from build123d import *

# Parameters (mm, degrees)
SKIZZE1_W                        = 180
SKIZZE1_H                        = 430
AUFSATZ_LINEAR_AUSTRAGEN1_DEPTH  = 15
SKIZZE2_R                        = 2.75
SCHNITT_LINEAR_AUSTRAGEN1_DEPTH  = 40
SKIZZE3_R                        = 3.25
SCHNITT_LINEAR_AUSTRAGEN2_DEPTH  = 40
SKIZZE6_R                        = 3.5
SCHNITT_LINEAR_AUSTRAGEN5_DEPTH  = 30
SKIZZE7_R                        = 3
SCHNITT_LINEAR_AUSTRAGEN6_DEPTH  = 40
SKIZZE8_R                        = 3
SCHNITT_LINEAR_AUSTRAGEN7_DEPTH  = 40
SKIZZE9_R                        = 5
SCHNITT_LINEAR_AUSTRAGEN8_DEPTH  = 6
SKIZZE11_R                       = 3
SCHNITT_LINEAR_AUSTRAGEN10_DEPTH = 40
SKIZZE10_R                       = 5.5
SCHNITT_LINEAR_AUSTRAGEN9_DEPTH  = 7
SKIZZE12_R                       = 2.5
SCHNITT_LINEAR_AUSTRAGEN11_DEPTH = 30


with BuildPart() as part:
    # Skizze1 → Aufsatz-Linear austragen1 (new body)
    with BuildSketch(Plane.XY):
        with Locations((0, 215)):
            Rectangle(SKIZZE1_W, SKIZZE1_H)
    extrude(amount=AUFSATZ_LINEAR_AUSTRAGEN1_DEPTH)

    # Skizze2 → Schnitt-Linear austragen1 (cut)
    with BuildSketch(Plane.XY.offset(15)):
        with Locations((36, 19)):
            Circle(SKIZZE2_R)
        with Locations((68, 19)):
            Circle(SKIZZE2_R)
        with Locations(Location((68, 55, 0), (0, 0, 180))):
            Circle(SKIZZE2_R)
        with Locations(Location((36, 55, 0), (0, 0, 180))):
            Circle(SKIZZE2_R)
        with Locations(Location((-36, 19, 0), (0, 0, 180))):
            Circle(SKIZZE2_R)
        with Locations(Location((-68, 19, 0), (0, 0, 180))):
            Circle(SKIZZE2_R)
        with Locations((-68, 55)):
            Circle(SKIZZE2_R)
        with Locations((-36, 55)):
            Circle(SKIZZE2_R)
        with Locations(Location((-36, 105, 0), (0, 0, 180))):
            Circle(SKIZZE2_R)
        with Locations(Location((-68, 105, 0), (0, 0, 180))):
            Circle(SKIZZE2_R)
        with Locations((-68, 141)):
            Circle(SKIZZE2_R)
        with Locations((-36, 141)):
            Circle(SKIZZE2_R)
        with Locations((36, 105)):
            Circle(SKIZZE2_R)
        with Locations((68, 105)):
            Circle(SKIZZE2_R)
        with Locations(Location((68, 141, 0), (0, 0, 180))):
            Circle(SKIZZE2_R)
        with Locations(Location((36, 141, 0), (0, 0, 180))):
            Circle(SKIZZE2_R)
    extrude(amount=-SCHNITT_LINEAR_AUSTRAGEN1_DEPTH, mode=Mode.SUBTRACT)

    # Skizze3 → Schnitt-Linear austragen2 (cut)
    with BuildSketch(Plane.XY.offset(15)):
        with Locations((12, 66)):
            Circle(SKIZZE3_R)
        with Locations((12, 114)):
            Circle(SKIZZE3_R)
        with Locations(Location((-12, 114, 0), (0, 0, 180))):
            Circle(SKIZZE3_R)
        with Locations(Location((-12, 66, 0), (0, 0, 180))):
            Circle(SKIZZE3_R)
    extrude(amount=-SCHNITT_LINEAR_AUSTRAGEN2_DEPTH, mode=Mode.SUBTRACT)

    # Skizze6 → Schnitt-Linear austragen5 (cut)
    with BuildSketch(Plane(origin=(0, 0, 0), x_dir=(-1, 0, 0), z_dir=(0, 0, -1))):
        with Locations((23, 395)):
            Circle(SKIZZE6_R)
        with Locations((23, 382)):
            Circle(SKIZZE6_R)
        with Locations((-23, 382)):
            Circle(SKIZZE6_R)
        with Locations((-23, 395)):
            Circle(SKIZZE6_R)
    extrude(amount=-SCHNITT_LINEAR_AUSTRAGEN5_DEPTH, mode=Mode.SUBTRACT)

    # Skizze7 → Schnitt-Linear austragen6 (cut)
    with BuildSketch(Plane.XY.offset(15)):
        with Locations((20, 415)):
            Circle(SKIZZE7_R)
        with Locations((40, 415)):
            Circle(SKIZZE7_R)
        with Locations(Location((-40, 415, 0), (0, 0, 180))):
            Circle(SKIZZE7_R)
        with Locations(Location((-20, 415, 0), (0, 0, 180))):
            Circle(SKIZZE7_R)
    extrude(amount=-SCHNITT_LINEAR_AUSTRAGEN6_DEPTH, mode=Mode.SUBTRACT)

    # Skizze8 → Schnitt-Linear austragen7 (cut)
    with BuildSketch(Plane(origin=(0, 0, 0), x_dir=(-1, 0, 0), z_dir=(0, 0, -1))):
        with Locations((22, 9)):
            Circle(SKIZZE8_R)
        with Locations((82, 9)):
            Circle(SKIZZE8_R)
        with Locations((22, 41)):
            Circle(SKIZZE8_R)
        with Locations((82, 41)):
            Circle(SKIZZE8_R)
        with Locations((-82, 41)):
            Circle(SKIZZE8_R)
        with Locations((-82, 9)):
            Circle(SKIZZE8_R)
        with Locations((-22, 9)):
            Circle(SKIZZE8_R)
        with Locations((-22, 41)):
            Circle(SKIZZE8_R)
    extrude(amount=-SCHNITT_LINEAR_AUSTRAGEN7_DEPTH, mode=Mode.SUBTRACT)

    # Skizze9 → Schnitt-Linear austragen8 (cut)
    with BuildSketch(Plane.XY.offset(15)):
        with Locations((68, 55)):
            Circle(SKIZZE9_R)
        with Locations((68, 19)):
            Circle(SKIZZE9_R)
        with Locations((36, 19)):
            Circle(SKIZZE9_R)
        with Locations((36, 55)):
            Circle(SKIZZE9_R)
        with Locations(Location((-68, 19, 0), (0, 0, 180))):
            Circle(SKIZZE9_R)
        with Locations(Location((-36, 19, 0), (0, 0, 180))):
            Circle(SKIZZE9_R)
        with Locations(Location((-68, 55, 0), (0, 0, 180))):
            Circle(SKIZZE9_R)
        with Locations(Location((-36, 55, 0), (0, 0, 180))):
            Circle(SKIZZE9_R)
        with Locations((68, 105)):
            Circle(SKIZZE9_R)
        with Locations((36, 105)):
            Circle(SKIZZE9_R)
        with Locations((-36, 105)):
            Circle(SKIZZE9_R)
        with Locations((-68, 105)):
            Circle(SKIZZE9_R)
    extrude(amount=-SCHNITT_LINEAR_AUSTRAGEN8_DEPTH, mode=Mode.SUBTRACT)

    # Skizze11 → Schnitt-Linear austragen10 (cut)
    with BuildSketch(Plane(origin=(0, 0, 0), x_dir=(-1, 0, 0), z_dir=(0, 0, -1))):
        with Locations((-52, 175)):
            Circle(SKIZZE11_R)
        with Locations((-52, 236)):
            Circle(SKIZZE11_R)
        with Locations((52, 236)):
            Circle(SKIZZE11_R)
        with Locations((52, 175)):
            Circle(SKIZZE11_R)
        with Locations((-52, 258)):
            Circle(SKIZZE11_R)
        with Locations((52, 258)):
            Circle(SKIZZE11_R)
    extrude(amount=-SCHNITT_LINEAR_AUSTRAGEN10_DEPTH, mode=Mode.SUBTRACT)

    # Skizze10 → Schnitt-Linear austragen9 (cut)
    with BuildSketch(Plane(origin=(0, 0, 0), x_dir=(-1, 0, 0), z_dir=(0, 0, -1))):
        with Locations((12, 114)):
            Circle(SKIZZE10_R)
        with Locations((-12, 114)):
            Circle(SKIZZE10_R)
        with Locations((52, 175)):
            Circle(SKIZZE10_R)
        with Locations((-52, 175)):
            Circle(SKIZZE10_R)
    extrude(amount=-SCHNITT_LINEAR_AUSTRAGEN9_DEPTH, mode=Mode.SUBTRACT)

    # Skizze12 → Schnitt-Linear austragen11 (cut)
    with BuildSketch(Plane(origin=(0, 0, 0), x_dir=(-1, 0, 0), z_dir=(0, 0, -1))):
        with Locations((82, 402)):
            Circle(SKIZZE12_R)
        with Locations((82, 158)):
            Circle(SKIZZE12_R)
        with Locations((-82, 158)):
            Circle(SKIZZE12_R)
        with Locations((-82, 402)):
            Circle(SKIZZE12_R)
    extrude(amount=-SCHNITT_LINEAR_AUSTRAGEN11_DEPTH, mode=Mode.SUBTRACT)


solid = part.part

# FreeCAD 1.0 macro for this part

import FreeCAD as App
import Part
import Sketcher
Q = App.Units.Quantity

doc = App.newDocument("Part")
params = doc.addObject("Spreadsheet::Sheet", "Params")
for row, (alias, value) in enumerate([
    ("sketch1_width", "180 mm"),
    ("sketch1_height", "430 mm"),
    ("pad1_length", "15 mm"),
    ("sketch2_diameter", "5.5 mm"),
    ("pocket1_length", "40 mm"),
    ("sketch3_diameter", "6.5 mm"),
    ("pocket2_length", "40 mm"),
    ("sketch4_diameter", "7 mm"),
    ("pocket3_length", "30 mm"),
    ("sketch5_diameter", "6 mm"),
    ("pocket4_length", "40 mm"),
    ("sketch6_diameter", "6 mm"),
    ("pocket5_length", "40 mm"),
    ("sketch7_diameter", "10 mm"),
    ("pocket6_length", "6 mm"),
    ("sketch8_diameter", "6 mm"),
    ("pocket7_length", "40 mm"),
    ("sketch9_diameter", "11 mm"),
    ("pocket8_length", "7 mm"),
    ("sketch10_diameter", "5 mm"),
    ("pocket9_length", "30 mm"),
], start=1):
    params.set(f"A{row}", alias)
    params.set(f"B{row}", "=" + value)
    params.setAlias(f"B{row}", alias)

body = doc.addObject("PartDesign::Body", "Body")

# Sketch on XY plane
sketch1 = body.newObject("Sketcher::SketchObject", "Sketch")
sketch1.AttachmentSupport = (doc.getObject("XY_Plane"), [""])
sketch1.MapMode = "FlatFace"
sketch1.addGeometry([
    Part.LineSegment(App.Vector(-90, 430, 0), App.Vector(-90, 0, 0)),
    Part.LineSegment(App.Vector(-90, 0, 0), App.Vector(90, 0, 0)),
    Part.LineSegment(App.Vector(90, 0, 0), App.Vector(90, 430, 0)),
    Part.LineSegment(App.Vector(90, 430, 0), App.Vector(-90, 430, 0)),
], False)
sketch1.addConstraint([
    Sketcher.Constraint("Coincident", 0, 2, 1, 1),
    Sketcher.Constraint("Coincident", 1, 2, 2, 1),
    Sketcher.Constraint("Coincident", 2, 2, 3, 1),
    Sketcher.Constraint("Coincident", 3, 2, 0, 1),
    Sketcher.Constraint("Vertical", 0),
    Sketcher.Constraint("Horizontal", 1),
    Sketcher.Constraint("Vertical", 2),
    Sketcher.Constraint("Horizontal", 3),
    Sketcher.Constraint("Symmetric", 0, 2, 1, 2, -1, 1),
    Sketcher.Constraint("DistanceX", 1, 1, 1, 2, Q("180 mm")),
    Sketcher.Constraint("DistanceY", 0, 2, 0, 1, Q("430 mm")),
])
sketch1.setExpression("Constraints[9]", "Params.sketch1_width")
sketch1.setExpression("Constraints[10]", "Params.sketch1_height")
pad1 = body.newObject("PartDesign::Pad", "Pad")
pad1.Profile = sketch1
pad1.setExpression("Length", "Params.pad1_length")

# Sketch on XY plane
sketch2 = body.newObject("Sketcher::SketchObject", "Sketch001")
sketch2.AttachmentSupport = (doc.getObject("XY_Plane"), [""])
sketch2.MapMode = "FlatFace"
sketch2.AttachmentOffset = App.Placement(App.Vector(0, 0, 15), App.Rotation())
sketch2.addGeometry([
    Part.Circle(App.Vector(36, 19, 0), App.Vector(0, 0, 1), 2.8),  # 0
    Part.Circle(App.Vector(68, 19, 0), App.Vector(0, 0, 1), 2.8),  # 1
    Part.Circle(App.Vector(68, 55, 0), App.Vector(0, 0, 1), 2.8),  # 2
    Part.Circle(App.Vector(36, 55, 0), App.Vector(0, 0, 1), 2.8),  # 3
    Part.Circle(App.Vector(-36, 19, 0), App.Vector(0, 0, 1), 2.8),  # 4
    Part.Circle(App.Vector(-68, 19, 0), App.Vector(0, 0, 1), 2.8),  # 5
    Part.Circle(App.Vector(-68, 55, 0), App.Vector(0, 0, 1), 2.8),  # 6
    Part.Circle(App.Vector(-36, 55, 0), App.Vector(0, 0, 1), 2.8),  # 7
    Part.Circle(App.Vector(-36, 105, 0), App.Vector(0, 0, 1), 2.8),  # 8
    Part.Circle(App.Vector(-68, 105, 0), App.Vector(0, 0, 1), 2.8),  # 9
    Part.Circle(App.Vector(-68, 141, 0), App.Vector(0, 0, 1), 2.8),  # 10
    Part.Circle(App.Vector(-36, 141, 0), App.Vector(0, 0, 1), 2.8),  # 11
    Part.Circle(App.Vector(36, 105, 0), App.Vector(0, 0, 1), 2.8),  # 12
    Part.Circle(App.Vector(68, 105, 0), App.Vector(0, 0, 1), 2.8),  # 13
    Part.Circle(App.Vector(68, 141, 0), App.Vector(0, 0, 1), 2.8),  # 14
    Part.Circle(App.Vector(36, 141, 0), App.Vector(0, 0, 1), 2.8),  # 15
], False)
sketch2.addConstraint([
    Sketcher.Constraint("Equal", 0, 1),
    Sketcher.Constraint("Equal", 1, 2),
    Sketcher.Constraint("Equal", 2, 3),
    Sketcher.Constraint("Equal", 3, 4),
    Sketcher.Constraint("Equal", 4, 5),
    Sketcher.Constraint("Equal", 5, 6),
    Sketcher.Constraint("Equal", 6, 7),
    Sketcher.Constraint("Equal", 7, 8),
    Sketcher.Constraint("Equal", 8, 9),
    Sketcher.Constraint("Equal", 9, 10),
    Sketcher.Constraint("Equal", 10, 11),
    Sketcher.Constraint("Equal", 11, 12),
    Sketcher.Constraint("Equal", 12, 13),
    Sketcher.Constraint("Equal", 13, 14),
    Sketcher.Constraint("Equal", 14, 15),
    Sketcher.Constraint("Symmetric", 0, 3, 4, 3, -2),
    Sketcher.Constraint("Symmetric", 1, 3, 5, 3, -2),
    Sketcher.Constraint("Symmetric", 2, 3, 6, 3, -2),
    Sketcher.Constraint("Symmetric", 3, 3, 7, 3, -2),
    Sketcher.Constraint("Symmetric", 8, 3, 12, 3, -2),
    Sketcher.Constraint("Symmetric", 9, 3, 13, 3, -2),
    Sketcher.Constraint("Symmetric", 10, 3, 14, 3, -2),
    Sketcher.Constraint("Symmetric", 11, 3, 15, 3, -2),
    Sketcher.Constraint("Horizontal", 0, 3, 1, 3),
    Sketcher.Constraint("Horizontal", 2, 3, 3, 3),
    Sketcher.Constraint("Horizontal", 8, 3, 9, 3),
    Sketcher.Constraint("Horizontal", 10, 3, 11, 3),
    Sketcher.Constraint("Vertical", 1, 3, 2, 3),
    Sketcher.Constraint("Vertical", 0, 3, 3, 3),
    Sketcher.Constraint("Vertical", 7, 3, 8, 3),
    Sketcher.Constraint("Vertical", 6, 3, 9, 3),
    Sketcher.Constraint("Vertical", 9, 3, 10, 3),
    Sketcher.Constraint("Vertical", 8, 3, 11, 3),
    Sketcher.Constraint("Diameter", 0, Q("5.5 mm")),
    Sketcher.Constraint("DistanceX", -1, 1, 0, 3, Q("36 mm")),
    Sketcher.Constraint("DistanceY", -1, 1, 0, 3, Q("19 mm")),
    Sketcher.Constraint("DistanceX", -1, 1, 1, 3, Q("68 mm")),
    Sketcher.Constraint("DistanceY", -1, 1, 2, 3, Q("55 mm")),
    Sketcher.Constraint("DistanceY", -1, 1, 8, 3, Q("105 mm")),
    Sketcher.Constraint("DistanceY", -1, 1, 10, 3, Q("141 mm")),
])
sketch2.setExpression("Constraints[33]", "Params.sketch2_diameter")
pocket1 = body.newObject("PartDesign::Pocket", "Pocket")
pocket1.Profile = sketch2
pocket1.setExpression("Length", "Params.pocket1_length")

# Sketch on XY plane
sketch3 = body.newObject("Sketcher::SketchObject", "Sketch002")
sketch3.AttachmentSupport = (doc.getObject("XY_Plane"), [""])
sketch3.MapMode = "FlatFace"
sketch3.AttachmentOffset = App.Placement(App.Vector(0, 0, 15), App.Rotation())
sketch3.addGeometry([
    Part.Circle(App.Vector(12, 66, 0), App.Vector(0, 0, 1), 3.2),
    Part.Circle(App.Vector(12, 114, 0), App.Vector(0, 0, 1), 3.2),
    Part.Circle(App.Vector(-12, 114, 0), App.Vector(0, 0, 1), 3.2),
    Part.Circle(App.Vector(-12, 66, 0), App.Vector(0, 0, 1), 3.2),
], False)
sketch3.addConstraint([
    Sketcher.Constraint("Equal", 0, 1),
    Sketcher.Constraint("Equal", 1, 2),
    Sketcher.Constraint("Equal", 2, 3),
    Sketcher.Constraint("Symmetric", 1, 3, 2, 3, -2),
    Sketcher.Constraint("Symmetric", 0, 3, 3, 3, -2),
    Sketcher.Constraint("Vertical", 0, 3, 1, 3),
    Sketcher.Constraint("Diameter", 0, Q("6.5 mm")),
    Sketcher.Constraint("DistanceX", -1, 1, 0, 3, Q("12 mm")),
    Sketcher.Constraint("DistanceY", -1, 1, 0, 3, Q("66 mm")),
    Sketcher.Constraint("DistanceY", -1, 1, 1, 3, Q("114 mm")),
])
sketch3.setExpression("Constraints[6]", "Params.sketch3_diameter")
pocket2 = body.newObject("PartDesign::Pocket", "Pocket001")
pocket2.Profile = sketch3
pocket2.setExpression("Length", "Params.pocket2_length")

# Sketch on XY plane
sketch4 = body.newObject("Sketcher::SketchObject", "Sketch003")
sketch4.AttachmentSupport = (doc.getObject("XY_Plane"), [""])
sketch4.MapMode = "FlatFace"
sketch4.addGeometry([
    Part.Circle(App.Vector(-23, 395, 0), App.Vector(0, 0, 1), 3.5),
    Part.Circle(App.Vector(-23, 382, 0), App.Vector(0, 0, 1), 3.5),
    Part.Circle(App.Vector(23, 382, 0), App.Vector(0, 0, 1), 3.5),
    Part.Circle(App.Vector(23, 395, 0), App.Vector(0, 0, 1), 3.5),
], False)
sketch4.addConstraint([
    Sketcher.Constraint("Equal", 0, 1),
    Sketcher.Constraint("Equal", 1, 2),
    Sketcher.Constraint("Equal", 2, 3),
    Sketcher.Constraint("Symmetric", 1, 3, 2, 3, -2),
    Sketcher.Constraint("Symmetric", 0, 3, 3, 3, -2),
    Sketcher.Constraint("Vertical", 0, 3, 1, 3),
    Sketcher.Constraint("Diameter", 0, Q("7 mm")),
    Sketcher.Constraint("DistanceX", 0, 3, -1, 1, Q("23 mm")),
    Sketcher.Constraint("DistanceY", -1, 1, 0, 3, Q("395 mm")),
    Sketcher.Constraint("DistanceY", -1, 1, 1, 3, Q("382 mm")),
])
sketch4.setExpression("Constraints[6]", "Params.sketch4_diameter")
pocket3 = body.newObject("PartDesign::Pocket", "Pocket002")
pocket3.Profile = sketch4
pocket3.setExpression("Length", "Params.pocket3_length")
pocket3.Reversed = True

# Sketch on XY plane
sketch5 = body.newObject("Sketcher::SketchObject", "Sketch004")
sketch5.AttachmentSupport = (doc.getObject("XY_Plane"), [""])
sketch5.MapMode = "FlatFace"
sketch5.AttachmentOffset = App.Placement(App.Vector(0, 0, 15), App.Rotation())
sketch5.addGeometry([
    Part.Circle(App.Vector(20, 415, 0), App.Vector(0, 0, 1), 3),
    Part.Circle(App.Vector(40, 415, 0), App.Vector(0, 0, 1), 3),
    Part.Circle(App.Vector(-40, 415, 0), App.Vector(0, 0, 1), 3),
    Part.Circle(App.Vector(-20, 415, 0), App.Vector(0, 0, 1), 3),
], False)
sketch5.addConstraint([
    Sketcher.Constraint("Equal", 0, 1),
    Sketcher.Constraint("Equal", 1, 2),
    Sketcher.Constraint("Equal", 2, 3),
    Sketcher.Constraint("Symmetric", 1, 3, 2, 3, -2),
    Sketcher.Constraint("Symmetric", 0, 3, 3, 3, -2),
    Sketcher.Constraint("Horizontal", 0, 3, 1, 3),
    Sketcher.Constraint("Diameter", 0, Q("6 mm")),
    Sketcher.Constraint("DistanceX", -1, 1, 0, 3, Q("20 mm")),
    Sketcher.Constraint("DistanceY", -1, 1, 0, 3, Q("415 mm")),
    Sketcher.Constraint("DistanceX", -1, 1, 1, 3, Q("40 mm")),
])
sketch5.setExpression("Constraints[6]", "Params.sketch5_diameter")
pocket4 = body.newObject("PartDesign::Pocket", "Pocket003")
pocket4.Profile = sketch5
pocket4.setExpression("Length", "Params.pocket4_length")

# Sketch on XY plane
sketch6 = body.newObject("Sketcher::SketchObject", "Sketch005")
sketch6.AttachmentSupport = (doc.getObject("XY_Plane"), [""])
sketch6.MapMode = "FlatFace"
sketch6.addGeometry([
    Part.Circle(App.Vector(-22, 9, 0), App.Vector(0, 0, 1), 3),  # 0
    Part.Circle(App.Vector(-82, 9, 0), App.Vector(0, 0, 1), 3),  # 1
    Part.Circle(App.Vector(-22, 41, 0), App.Vector(0, 0, 1), 3),  # 2
    Part.Circle(App.Vector(-82, 41, 0), App.Vector(0, 0, 1), 3),  # 3
    Part.Circle(App.Vector(82, 41, 0), App.Vector(0, 0, 1), 3),  # 4
    Part.Circle(App.Vector(82, 9, 0), App.Vector(0, 0, 1), 3),  # 5
    Part.Circle(App.Vector(22, 9, 0), App.Vector(0, 0, 1), 3),  # 6
    Part.Circle(App.Vector(22, 41, 0), App.Vector(0, 0, 1), 3),  # 7
], False)
sketch6.addConstraint([
    Sketcher.Constraint("Equal", 0, 1),
    Sketcher.Constraint("Equal", 1, 2),
    Sketcher.Constraint("Equal", 2, 3),
    Sketcher.Constraint("Equal", 3, 4),
    Sketcher.Constraint("Equal", 4, 5),
    Sketcher.Constraint("Equal", 5, 6),
    Sketcher.Constraint("Equal", 6, 7),
    Sketcher.Constraint("Symmetric", 3, 3, 4, 3, -2),
    Sketcher.Constraint("Symmetric", 1, 3, 5, 3, -2),
    Sketcher.Constraint("Symmetric", 0, 3, 6, 3, -2),
    Sketcher.Constraint("Symmetric", 2, 3, 7, 3, -2),
    Sketcher.Constraint("Horizontal", 0, 3, 1, 3),
    Sketcher.Constraint("Horizontal", 2, 3, 3, 3),
    Sketcher.Constraint("Vertical", 0, 3, 2, 3),
    Sketcher.Constraint("Vertical", 1, 3, 3, 3),
    Sketcher.Constraint("Diameter", 0, Q("6 mm")),
    Sketcher.Constraint("DistanceX", 0, 3, -1, 1, Q("22 mm")),
    Sketcher.Constraint("DistanceY", -1, 1, 0, 3, Q("9 mm")),
    Sketcher.Constraint("DistanceX", 1, 3, -1, 1, Q("82 mm")),
    Sketcher.Constraint("DistanceY", -1, 1, 2, 3, Q("41 mm")),
])
sketch6.setExpression("Constraints[15]", "Params.sketch6_diameter")
pocket5 = body.newObject("PartDesign::Pocket", "Pocket004")
pocket5.Profile = sketch6
pocket5.setExpression("Length", "Params.pocket5_length")
pocket5.Reversed = True

# Sketch on XY plane
sketch7 = body.newObject("Sketcher::SketchObject", "Sketch006")
sketch7.AttachmentSupport = (doc.getObject("XY_Plane"), [""])
sketch7.MapMode = "FlatFace"
sketch7.AttachmentOffset = App.Placement(App.Vector(0, 0, 15), App.Rotation())
sketch7.addGeometry([
    Part.Circle(App.Vector(68, 55, 0), App.Vector(0, 0, 1), 5),  # 0
    Part.Circle(App.Vector(68, 19, 0), App.Vector(0, 0, 1), 5),  # 1
    Part.Circle(App.Vector(36, 19, 0), App.Vector(0, 0, 1), 5),  # 2
    Part.Circle(App.Vector(36, 55, 0), App.Vector(0, 0, 1), 5),  # 3
    Part.Circle(App.Vector(-68, 19, 0), App.Vector(0, 0, 1), 5),  # 4
    Part.Circle(App.Vector(-36, 19, 0), App.Vector(0, 0, 1), 5),  # 5
    Part.Circle(App.Vector(-68, 55, 0), App.Vector(0, 0, 1), 5),  # 6
    Part.Circle(App.Vector(-36, 55, 0), App.Vector(0, 0, 1), 5),  # 7
    Part.Circle(App.Vector(68, 105, 0), App.Vector(0, 0, 1), 5),  # 8
    Part.Circle(App.Vector(36, 105, 0), App.Vector(0, 0, 1), 5),  # 9
    Part.Circle(App.Vector(-36, 105, 0), App.Vector(0, 0, 1), 5),  # 10
    Part.Circle(App.Vector(-68, 105, 0), App.Vector(0, 0, 1), 5),  # 11
], False)
sketch7.addConstraint([
    Sketcher.Constraint("Equal", 0, 1),
    Sketcher.Constraint("Equal", 1, 2),
    Sketcher.Constraint("Equal", 2, 3),
    Sketcher.Constraint("Equal", 3, 4),
    Sketcher.Constraint("Equal", 4, 5),
    Sketcher.Constraint("Equal", 5, 6),
    Sketcher.Constraint("Equal", 6, 7),
    Sketcher.Constraint("Equal", 7, 8),
    Sketcher.Constraint("Equal", 8, 9),
    Sketcher.Constraint("Equal", 9, 10),
    Sketcher.Constraint("Equal", 10, 11),
    Sketcher.Constraint("Symmetric", 1, 3, 4, 3, -2),
    Sketcher.Constraint("Symmetric", 2, 3, 5, 3, -2),
    Sketcher.Constraint("Symmetric", 0, 3, 6, 3, -2),
    Sketcher.Constraint("Symmetric", 3, 3, 7, 3, -2),
    Sketcher.Constraint("Symmetric", 9, 3, 10, 3, -2),
    Sketcher.Constraint("Symmetric", 8, 3, 11, 3, -2),
    Sketcher.Constraint("Horizontal", 1, 3, 2, 3),
    Sketcher.Constraint("Horizontal", 0, 3, 3, 3),
    Sketcher.Constraint("Horizontal", 8, 3, 9, 3),
    Sketcher.Constraint("Vertical", 0, 3, 1, 3),
    Sketcher.Constraint("Vertical", 2, 3, 3, 3),
    Sketcher.Constraint("Vertical", 1, 3, 8, 3),
    Sketcher.Constraint("Vertical", 3, 3, 9, 3),
    Sketcher.Constraint("Diameter", 0, Q("10 mm")),
    Sketcher.Constraint("DistanceX", -1, 1, 0, 3, Q("68 mm")),
    Sketcher.Constraint("DistanceY", -1, 1, 0, 3, Q("55 mm")),
    Sketcher.Constraint("DistanceY", -1, 1, 1, 3, Q("19 mm")),
    Sketcher.Constraint("DistanceX", -1, 1, 2, 3, Q("36 mm")),
    Sketcher.Constraint("DistanceY", -1, 1, 8, 3, Q("105 mm")),
])
sketch7.setExpression("Constraints[24]", "Params.sketch7_diameter")
pocket6 = body.newObject("PartDesign::Pocket", "Pocket005")
pocket6.Profile = sketch7
pocket6.setExpression("Length", "Params.pocket6_length")

# Sketch on XY plane
sketch8 = body.newObject("Sketcher::SketchObject", "Sketch007")
sketch8.AttachmentSupport = (doc.getObject("XY_Plane"), [""])
sketch8.MapMode = "FlatFace"
sketch8.addGeometry([
    Part.Circle(App.Vector(52, 175, 0), App.Vector(0, 0, 1), 3),  # 0
    Part.Circle(App.Vector(52, 236, 0), App.Vector(0, 0, 1), 3),  # 1
    Part.Circle(App.Vector(-52, 236, 0), App.Vector(0, 0, 1), 3),  # 2
    Part.Circle(App.Vector(-52, 175, 0), App.Vector(0, 0, 1), 3),  # 3
    Part.Circle(App.Vector(52, 258, 0), App.Vector(0, 0, 1), 3),  # 4
    Part.Circle(App.Vector(-52, 258, 0), App.Vector(0, 0, 1), 3),  # 5
], False)
sketch8.addConstraint([
    Sketcher.Constraint("Equal", 0, 1),
    Sketcher.Constraint("Equal", 1, 2),
    Sketcher.Constraint("Equal", 2, 3),
    Sketcher.Constraint("Equal", 3, 4),
    Sketcher.Constraint("Equal", 4, 5),
    Sketcher.Constraint("Symmetric", 1, 3, 2, 3, -2),
    Sketcher.Constraint("Symmetric", 0, 3, 3, 3, -2),
    Sketcher.Constraint("Symmetric", 4, 3, 5, 3, -2),
    Sketcher.Constraint("Vertical", 0, 3, 1, 3),
    Sketcher.Constraint("Vertical", 1, 3, 4, 3),
    Sketcher.Constraint("Diameter", 0, Q("6 mm")),
    Sketcher.Constraint("DistanceX", -1, 1, 0, 3, Q("52 mm")),
    Sketcher.Constraint("DistanceY", -1, 1, 0, 3, Q("175 mm")),
    Sketcher.Constraint("DistanceY", -1, 1, 1, 3, Q("236 mm")),
    Sketcher.Constraint("DistanceY", -1, 1, 4, 3, Q("258 mm")),
])
sketch8.setExpression("Constraints[10]", "Params.sketch8_diameter")
pocket7 = body.newObject("PartDesign::Pocket", "Pocket006")
pocket7.Profile = sketch8
pocket7.setExpression("Length", "Params.pocket7_length")
pocket7.Reversed = True

# Sketch on XY plane
sketch9 = body.newObject("Sketcher::SketchObject", "Sketch008")
sketch9.AttachmentSupport = (doc.getObject("XY_Plane"), [""])
sketch9.MapMode = "FlatFace"
sketch9.addGeometry([
    Part.Circle(App.Vector(-12, 114, 0), App.Vector(0, 0, 1), 6),
    Part.Circle(App.Vector(12, 114, 0), App.Vector(0, 0, 1), 6),
    Part.Circle(App.Vector(-52, 175, 0), App.Vector(0, 0, 1), 6),
    Part.Circle(App.Vector(52, 175, 0), App.Vector(0, 0, 1), 6),
], False)
sketch9.addConstraint([
    Sketcher.Constraint("Equal", 0, 1),
    Sketcher.Constraint("Equal", 1, 2),
    Sketcher.Constraint("Equal", 2, 3),
    Sketcher.Constraint("Symmetric", 0, 3, 1, 3, -2),
    Sketcher.Constraint("Symmetric", 2, 3, 3, 3, -2),
    Sketcher.Constraint("Diameter", 0, Q("11 mm")),
    Sketcher.Constraint("DistanceX", 0, 3, -1, 1, Q("12 mm")),
    Sketcher.Constraint("DistanceY", -1, 1, 0, 3, Q("114 mm")),
    Sketcher.Constraint("DistanceX", 2, 3, -1, 1, Q("52 mm")),
    Sketcher.Constraint("DistanceY", -1, 1, 2, 3, Q("175 mm")),
])
sketch9.setExpression("Constraints[5]", "Params.sketch9_diameter")
pocket8 = body.newObject("PartDesign::Pocket", "Pocket007")
pocket8.Profile = sketch9
pocket8.setExpression("Length", "Params.pocket8_length")
pocket8.Reversed = True

# Sketch on XY plane
sketch10 = body.newObject("Sketcher::SketchObject", "Sketch009")
sketch10.AttachmentSupport = (doc.getObject("XY_Plane"), [""])
sketch10.MapMode = "FlatFace"
sketch10.addGeometry([
    Part.Circle(App.Vector(-82, 402, 0), App.Vector(0, 0, 1), 2.5),
    Part.Circle(App.Vector(-82, 158, 0), App.Vector(0, 0, 1), 2.5),
    Part.Circle(App.Vector(82, 158, 0), App.Vector(0, 0, 1), 2.5),
    Part.Circle(App.Vector(82, 402, 0), App.Vector(0, 0, 1), 2.5),
], False)
sketch10.addConstraint([
    Sketcher.Constraint("Equal", 0, 1),
    Sketcher.Constraint("Equal", 1, 2),
    Sketcher.Constraint("Equal", 2, 3),
    Sketcher.Constraint("Symmetric", 1, 3, 2, 3, -2),
    Sketcher.Constraint("Symmetric", 0, 3, 3, 3, -2),
    Sketcher.Constraint("Vertical", 0, 3, 1, 3),
    Sketcher.Constraint("Diameter", 0, Q("5 mm")),
    Sketcher.Constraint("DistanceX", 0, 3, -1, 1, Q("82 mm")),
    Sketcher.Constraint("DistanceY", -1, 1, 0, 3, Q("402 mm")),
    Sketcher.Constraint("DistanceY", -1, 1, 1, 3, Q("158 mm")),
])
sketch10.setExpression("Constraints[6]", "Params.sketch10_diameter")
pocket9 = body.newObject("PartDesign::Pocket", "Pocket008")
pocket9.Profile = sketch10
pocket9.setExpression("Length", "Params.pocket9_length")
pocket9.Reversed = True

doc.recompute()
